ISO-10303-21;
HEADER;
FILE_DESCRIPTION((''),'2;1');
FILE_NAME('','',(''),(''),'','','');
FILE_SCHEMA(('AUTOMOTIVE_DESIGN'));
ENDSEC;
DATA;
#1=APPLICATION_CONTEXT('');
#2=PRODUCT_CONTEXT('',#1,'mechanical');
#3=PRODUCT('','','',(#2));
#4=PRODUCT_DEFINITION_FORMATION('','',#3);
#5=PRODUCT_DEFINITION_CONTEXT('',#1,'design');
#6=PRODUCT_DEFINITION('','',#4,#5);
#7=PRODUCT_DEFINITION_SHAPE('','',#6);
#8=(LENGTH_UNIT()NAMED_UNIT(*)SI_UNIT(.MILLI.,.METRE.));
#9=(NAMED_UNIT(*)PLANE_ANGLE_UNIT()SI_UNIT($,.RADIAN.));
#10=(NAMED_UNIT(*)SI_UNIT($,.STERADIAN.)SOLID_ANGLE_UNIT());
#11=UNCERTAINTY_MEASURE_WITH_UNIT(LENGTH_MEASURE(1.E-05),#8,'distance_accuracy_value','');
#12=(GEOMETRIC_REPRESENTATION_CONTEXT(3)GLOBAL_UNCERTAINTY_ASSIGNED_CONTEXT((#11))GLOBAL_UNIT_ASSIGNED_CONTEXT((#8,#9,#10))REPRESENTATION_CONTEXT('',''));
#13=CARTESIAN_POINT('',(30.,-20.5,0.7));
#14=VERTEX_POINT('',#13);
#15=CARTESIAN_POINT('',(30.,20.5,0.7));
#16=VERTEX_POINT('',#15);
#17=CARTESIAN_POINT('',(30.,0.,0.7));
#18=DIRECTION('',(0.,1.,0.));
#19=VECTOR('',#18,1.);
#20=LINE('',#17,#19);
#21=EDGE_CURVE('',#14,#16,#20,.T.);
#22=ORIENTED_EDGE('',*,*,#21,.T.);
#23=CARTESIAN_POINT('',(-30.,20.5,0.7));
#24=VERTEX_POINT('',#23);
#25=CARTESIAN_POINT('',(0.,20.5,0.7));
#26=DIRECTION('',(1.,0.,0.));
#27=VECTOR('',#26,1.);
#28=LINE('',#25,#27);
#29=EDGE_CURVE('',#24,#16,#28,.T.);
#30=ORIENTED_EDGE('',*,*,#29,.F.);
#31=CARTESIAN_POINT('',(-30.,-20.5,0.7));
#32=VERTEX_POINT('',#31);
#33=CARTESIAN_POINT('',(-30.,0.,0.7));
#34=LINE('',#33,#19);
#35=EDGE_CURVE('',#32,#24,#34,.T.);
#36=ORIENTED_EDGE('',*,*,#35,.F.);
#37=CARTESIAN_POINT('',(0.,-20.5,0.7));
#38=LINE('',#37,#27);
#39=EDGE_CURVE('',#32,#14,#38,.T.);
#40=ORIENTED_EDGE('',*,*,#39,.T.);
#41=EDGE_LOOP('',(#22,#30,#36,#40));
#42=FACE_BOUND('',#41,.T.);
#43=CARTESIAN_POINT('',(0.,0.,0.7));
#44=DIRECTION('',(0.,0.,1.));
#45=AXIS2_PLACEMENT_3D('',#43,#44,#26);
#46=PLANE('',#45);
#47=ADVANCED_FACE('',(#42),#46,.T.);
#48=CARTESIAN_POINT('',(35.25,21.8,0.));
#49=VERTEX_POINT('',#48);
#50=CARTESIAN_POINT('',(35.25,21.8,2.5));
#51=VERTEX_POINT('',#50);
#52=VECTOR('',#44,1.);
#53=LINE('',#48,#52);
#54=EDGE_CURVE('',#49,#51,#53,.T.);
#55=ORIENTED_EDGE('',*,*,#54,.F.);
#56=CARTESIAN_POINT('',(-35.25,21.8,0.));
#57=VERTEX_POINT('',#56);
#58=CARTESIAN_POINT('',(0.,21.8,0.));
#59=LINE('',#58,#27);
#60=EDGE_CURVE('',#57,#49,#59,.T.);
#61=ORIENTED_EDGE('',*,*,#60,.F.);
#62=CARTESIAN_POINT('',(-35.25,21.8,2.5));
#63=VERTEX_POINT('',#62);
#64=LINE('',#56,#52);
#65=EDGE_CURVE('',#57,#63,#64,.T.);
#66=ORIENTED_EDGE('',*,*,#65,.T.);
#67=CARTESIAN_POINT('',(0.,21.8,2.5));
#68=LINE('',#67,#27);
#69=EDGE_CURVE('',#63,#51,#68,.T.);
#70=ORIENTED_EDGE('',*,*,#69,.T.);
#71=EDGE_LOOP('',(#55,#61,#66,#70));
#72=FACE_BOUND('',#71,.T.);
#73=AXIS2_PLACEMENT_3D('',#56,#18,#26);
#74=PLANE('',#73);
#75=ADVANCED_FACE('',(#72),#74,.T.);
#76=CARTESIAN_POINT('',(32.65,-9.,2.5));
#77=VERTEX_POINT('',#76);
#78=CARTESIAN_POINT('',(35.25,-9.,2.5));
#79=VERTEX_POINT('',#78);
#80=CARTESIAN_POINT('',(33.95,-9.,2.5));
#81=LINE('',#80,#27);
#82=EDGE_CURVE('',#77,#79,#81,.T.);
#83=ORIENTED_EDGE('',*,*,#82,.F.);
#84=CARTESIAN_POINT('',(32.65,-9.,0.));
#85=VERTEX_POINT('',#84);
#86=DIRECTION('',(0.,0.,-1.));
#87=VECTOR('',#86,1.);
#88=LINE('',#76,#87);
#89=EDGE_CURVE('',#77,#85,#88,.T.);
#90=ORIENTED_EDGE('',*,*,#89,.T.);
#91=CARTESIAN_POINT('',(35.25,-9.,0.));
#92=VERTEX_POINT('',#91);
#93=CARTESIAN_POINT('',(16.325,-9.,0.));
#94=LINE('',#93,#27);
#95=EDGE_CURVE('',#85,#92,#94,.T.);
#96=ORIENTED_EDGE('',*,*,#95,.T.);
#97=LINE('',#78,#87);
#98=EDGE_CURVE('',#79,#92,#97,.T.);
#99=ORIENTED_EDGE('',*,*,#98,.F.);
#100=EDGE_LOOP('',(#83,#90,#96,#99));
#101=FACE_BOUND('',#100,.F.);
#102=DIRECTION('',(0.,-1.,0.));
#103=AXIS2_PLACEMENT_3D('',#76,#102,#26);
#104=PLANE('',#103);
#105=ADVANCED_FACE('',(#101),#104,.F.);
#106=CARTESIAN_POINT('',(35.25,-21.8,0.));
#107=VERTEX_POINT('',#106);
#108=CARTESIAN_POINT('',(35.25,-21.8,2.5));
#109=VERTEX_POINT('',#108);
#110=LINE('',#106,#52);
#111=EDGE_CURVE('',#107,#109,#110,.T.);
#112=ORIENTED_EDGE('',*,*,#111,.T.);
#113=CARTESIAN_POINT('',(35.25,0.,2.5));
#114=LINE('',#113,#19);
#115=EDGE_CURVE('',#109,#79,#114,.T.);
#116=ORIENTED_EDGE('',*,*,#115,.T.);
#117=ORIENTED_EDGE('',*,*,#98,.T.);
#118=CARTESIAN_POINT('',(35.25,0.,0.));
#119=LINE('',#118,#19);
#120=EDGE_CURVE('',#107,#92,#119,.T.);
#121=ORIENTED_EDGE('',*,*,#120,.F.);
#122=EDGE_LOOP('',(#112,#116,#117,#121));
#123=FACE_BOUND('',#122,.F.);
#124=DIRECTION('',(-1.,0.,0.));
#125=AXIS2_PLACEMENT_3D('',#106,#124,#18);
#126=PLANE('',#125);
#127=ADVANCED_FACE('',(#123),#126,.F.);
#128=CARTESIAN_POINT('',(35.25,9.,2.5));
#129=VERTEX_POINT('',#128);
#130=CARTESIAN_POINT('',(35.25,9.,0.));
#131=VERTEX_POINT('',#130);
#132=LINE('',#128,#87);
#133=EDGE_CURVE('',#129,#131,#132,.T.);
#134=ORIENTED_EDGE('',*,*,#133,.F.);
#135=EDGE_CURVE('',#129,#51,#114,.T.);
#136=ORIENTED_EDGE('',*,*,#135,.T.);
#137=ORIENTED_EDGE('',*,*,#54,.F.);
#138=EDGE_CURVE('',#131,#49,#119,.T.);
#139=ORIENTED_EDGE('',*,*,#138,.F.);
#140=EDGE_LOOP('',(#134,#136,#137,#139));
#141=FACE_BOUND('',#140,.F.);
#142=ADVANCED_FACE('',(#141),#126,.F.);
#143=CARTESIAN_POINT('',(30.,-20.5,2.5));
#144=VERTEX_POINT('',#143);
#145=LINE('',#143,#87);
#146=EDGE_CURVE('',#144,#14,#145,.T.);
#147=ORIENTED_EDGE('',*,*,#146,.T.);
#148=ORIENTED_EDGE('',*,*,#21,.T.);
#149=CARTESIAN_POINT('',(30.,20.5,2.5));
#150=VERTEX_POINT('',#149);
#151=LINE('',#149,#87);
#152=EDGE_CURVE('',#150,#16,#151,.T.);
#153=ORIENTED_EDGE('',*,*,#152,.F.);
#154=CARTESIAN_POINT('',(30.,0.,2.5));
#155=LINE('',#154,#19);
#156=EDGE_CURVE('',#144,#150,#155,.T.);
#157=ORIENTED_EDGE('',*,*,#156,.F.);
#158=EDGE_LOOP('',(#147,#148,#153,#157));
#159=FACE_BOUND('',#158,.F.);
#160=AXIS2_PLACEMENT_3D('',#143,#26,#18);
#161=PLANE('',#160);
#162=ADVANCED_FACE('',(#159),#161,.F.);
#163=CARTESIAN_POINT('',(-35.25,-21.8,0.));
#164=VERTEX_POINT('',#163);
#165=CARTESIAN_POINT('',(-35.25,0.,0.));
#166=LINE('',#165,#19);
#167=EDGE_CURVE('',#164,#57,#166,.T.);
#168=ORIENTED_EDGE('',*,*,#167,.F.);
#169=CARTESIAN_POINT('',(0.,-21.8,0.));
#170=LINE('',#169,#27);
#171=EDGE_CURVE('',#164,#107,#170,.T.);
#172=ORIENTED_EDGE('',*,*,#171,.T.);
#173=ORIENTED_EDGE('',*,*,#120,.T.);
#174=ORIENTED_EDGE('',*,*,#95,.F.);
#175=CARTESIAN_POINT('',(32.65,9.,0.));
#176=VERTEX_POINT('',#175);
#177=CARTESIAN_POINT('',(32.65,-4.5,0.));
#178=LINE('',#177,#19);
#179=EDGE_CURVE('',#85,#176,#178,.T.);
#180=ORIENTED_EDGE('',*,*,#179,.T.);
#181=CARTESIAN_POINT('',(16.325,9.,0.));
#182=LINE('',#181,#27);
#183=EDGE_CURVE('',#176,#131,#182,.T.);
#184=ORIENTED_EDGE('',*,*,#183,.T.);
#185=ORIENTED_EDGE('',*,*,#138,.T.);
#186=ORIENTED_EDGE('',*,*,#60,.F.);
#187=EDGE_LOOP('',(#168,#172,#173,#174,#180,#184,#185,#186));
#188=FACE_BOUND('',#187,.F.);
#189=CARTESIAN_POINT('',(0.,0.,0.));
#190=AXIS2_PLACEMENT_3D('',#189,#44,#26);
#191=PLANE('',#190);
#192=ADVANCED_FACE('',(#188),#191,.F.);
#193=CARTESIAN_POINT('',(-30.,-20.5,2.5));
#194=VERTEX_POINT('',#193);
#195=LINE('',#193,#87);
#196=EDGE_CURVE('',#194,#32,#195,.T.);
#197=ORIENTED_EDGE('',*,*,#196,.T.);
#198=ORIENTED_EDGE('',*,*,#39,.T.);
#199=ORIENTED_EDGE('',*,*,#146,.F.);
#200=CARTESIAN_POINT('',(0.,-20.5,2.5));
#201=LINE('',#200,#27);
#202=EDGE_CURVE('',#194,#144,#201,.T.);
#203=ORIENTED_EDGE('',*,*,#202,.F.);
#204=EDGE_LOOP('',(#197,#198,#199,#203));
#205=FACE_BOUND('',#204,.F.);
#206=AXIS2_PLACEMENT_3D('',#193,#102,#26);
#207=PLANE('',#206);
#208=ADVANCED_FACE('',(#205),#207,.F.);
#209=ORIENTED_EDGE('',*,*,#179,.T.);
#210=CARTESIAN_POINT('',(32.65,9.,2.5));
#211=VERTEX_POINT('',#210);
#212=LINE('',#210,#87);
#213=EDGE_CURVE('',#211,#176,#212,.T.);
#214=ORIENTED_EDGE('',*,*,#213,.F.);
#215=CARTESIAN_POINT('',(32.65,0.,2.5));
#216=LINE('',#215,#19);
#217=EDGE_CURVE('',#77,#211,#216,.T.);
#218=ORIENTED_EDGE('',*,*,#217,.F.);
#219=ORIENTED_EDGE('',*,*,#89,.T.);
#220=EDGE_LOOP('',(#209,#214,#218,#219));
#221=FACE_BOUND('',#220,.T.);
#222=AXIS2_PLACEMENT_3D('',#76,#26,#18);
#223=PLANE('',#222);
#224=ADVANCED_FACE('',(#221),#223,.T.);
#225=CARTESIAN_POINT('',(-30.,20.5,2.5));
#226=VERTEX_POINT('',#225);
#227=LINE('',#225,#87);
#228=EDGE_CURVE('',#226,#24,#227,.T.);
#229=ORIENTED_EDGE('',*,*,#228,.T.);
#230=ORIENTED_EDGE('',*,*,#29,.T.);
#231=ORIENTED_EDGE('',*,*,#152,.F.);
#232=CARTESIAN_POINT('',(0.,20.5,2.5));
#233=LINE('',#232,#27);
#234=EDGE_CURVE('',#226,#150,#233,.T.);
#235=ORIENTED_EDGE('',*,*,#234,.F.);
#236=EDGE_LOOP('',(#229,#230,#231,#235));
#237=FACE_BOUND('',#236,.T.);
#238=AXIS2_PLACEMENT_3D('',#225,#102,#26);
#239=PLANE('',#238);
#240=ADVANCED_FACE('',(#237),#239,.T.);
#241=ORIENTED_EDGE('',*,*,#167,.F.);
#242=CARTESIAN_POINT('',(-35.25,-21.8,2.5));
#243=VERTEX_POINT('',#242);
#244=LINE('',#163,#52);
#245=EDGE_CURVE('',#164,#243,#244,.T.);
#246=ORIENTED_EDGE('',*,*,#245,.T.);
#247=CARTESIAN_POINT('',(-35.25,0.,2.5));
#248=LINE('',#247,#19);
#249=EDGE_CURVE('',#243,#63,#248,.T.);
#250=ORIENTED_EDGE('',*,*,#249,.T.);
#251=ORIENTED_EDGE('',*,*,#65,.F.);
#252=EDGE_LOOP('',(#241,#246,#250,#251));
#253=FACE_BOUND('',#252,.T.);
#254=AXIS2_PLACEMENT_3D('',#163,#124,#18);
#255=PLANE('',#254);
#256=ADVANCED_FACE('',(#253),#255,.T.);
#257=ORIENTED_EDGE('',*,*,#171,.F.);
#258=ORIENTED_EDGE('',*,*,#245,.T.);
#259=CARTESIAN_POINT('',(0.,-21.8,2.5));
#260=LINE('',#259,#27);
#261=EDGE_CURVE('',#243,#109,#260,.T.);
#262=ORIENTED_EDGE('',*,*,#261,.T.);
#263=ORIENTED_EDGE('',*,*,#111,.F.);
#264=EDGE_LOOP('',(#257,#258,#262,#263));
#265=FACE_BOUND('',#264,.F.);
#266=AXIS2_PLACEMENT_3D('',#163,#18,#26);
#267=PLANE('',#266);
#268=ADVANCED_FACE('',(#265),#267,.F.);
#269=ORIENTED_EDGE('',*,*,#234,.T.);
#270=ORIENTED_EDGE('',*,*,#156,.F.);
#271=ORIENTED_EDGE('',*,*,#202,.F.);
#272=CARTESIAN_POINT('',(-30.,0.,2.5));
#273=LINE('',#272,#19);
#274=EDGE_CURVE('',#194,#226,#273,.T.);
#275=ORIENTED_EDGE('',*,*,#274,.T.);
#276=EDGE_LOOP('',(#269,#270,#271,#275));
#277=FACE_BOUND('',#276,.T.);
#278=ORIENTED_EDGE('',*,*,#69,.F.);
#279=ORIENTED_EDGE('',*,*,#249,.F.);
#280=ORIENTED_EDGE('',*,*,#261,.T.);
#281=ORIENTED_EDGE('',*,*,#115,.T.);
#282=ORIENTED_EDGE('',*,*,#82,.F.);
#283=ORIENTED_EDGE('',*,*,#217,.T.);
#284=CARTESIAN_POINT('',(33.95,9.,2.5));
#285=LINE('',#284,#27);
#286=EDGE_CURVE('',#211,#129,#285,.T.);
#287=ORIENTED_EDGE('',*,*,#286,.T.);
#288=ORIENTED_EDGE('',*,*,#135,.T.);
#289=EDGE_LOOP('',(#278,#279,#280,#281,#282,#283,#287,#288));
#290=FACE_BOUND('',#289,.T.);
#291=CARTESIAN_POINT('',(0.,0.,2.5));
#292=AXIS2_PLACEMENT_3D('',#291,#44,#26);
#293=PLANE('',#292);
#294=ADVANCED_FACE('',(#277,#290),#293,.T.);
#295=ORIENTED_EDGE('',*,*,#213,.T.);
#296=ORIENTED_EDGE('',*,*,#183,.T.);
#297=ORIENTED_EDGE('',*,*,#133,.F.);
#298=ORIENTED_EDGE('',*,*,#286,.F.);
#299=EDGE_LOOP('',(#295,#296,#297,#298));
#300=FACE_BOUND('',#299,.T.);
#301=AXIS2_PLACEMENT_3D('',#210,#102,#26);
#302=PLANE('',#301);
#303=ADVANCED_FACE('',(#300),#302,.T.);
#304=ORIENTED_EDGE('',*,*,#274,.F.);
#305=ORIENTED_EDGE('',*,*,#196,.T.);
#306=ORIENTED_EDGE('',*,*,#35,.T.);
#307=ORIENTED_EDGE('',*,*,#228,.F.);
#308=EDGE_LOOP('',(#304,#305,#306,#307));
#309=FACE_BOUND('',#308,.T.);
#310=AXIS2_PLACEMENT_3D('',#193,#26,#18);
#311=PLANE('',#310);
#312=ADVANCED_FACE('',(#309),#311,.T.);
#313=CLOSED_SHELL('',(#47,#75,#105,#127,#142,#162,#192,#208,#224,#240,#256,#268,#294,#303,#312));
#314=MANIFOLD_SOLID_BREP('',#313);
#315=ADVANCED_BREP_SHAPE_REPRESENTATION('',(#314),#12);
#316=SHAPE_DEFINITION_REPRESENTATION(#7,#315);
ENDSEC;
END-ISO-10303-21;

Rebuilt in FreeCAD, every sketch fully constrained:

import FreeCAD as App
import Part
import Sketcher

doc = App.newDocument("Part")
body = doc.addObject("PartDesign::Body", "Body")

# Sketch on XY plane
sketch1 = doc.addObject("Sketcher::SketchObject", "Sketch")
body.addObject(sketch1)
sketch1.AttachmentSupport = (doc.XY_Plane, [""])
sketch1.MapMode = "FlatFace"
sketch1.addGeometry([
    Part.LineSegment(App.Vector(-35, 22, 0), App.Vector(-35, -22, 0)),
    Part.LineSegment(App.Vector(-35, -22, 0), App.Vector(35, -22, 0)),
    Part.LineSegment(App.Vector(35, -22, 0), App.Vector(35, 22, 0)),
    Part.LineSegment(App.Vector(35, 22, 0), App.Vector(-35, 22, 0)),
], False)
sketch1.addConstraint([
    Sketcher.Constraint("Coincident", 0, 2, 1, 1),
    Sketcher.Constraint("Coincident", 1, 2, 2, 1),
    Sketcher.Constraint("Coincident", 2, 2, 3, 1),
    Sketcher.Constraint("Coincident", 3, 2, 0, 1),
    Sketcher.Constraint("Vertical", 0),
    Sketcher.Constraint("Horizontal", 1),
    Sketcher.Constraint("Vertical", 2),
    Sketcher.Constraint("Horizontal", 3),
    Sketcher.Constraint("Symmetric", 0, 2, 2, 2, -1, 1),
    Sketcher.Constraint("DistanceX", 1, 1, 1, 2, 70.5),
    Sketcher.Constraint("DistanceY", 0, 2, 0, 1, 43.6),
])
pad1 = doc.addObject("PartDesign::Pad", "Pad")
body.addObject(pad1)
pad1.Profile = sketch1
pad1.Length = 2.5

# Sketch on XY plane
sketch2 = doc.addObject("Sketcher::SketchObject", "Sketch001")
body.addObject(sketch2)
sketch2.AttachmentSupport = (doc.XY_Plane, [""])
sketch2.MapMode = "FlatFace"
sketch2.AttachmentOffset = App.Placement(App.Vector(0, 0, 2.5), App.Rotation())
sketch2.addGeometry([
    Part.LineSegment(App.Vector(-30, 20, 0), App.Vector(-30, -20, 0)),
    Part.LineSegment(App.Vector(-30, -20, 0), App.Vector(30, -20, 0)),
    Part.LineSegment(App.Vector(30, -20, 0), App.Vector(30, 20, 0)),
    Part.LineSegment(App.Vector(30, 20, 0), App.Vector(-30, 20, 0)),
], False)
sketch2.addConstraint([
    Sketcher.Constraint("Coincident", 0, 2, 1, 1),
    Sketcher.Constraint("Coincident", 1, 2, 2, 1),
    Sketcher.Constraint("Coincident", 2, 2, 3, 1),
    Sketcher.Constraint("Coincident", 3, 2, 0, 1),
    Sketcher.Constraint("Vertical", 0),
    Sketcher.Constraint("Horizontal", 1),
    Sketcher.Constraint("Vertical", 2),
    Sketcher.Constraint("Horizontal", 3),
    Sketcher.Constraint("Symmetric", 0, 2, 2, 2, -1, 1),
    Sketcher.Constraint("DistanceX", 1, 1, 1, 2, 60.0),
    Sketcher.Constraint("DistanceY", 0, 2, 0, 1, 41.0),
])
pocket1 = doc.addObject("PartDesign::Pocket", "Pocket")
body.addObject(pocket1)
pocket1.Profile = sketch2
pocket1.Length = 1.8

# Sketch on XY plane
sketch3 = doc.addObject("Sketcher::SketchObject", "Sketch002")
body.addObject(sketch3)
sketch3.AttachmentSupport = (doc.XY_Plane, [""])
sketch3.MapMode = "FlatFace"
sketch3.AttachmentOffset = App.Placement(App.Vector(0, 0, 2.5), App.Rotation())
sketch3.addGeometry([
    Part.LineSegment(App.Vector(32.6, 9, 0), App.Vector(32.6, -9, 0)),
    Part.LineSegment(App.Vector(32.6, -9, 0), App.Vector(35.2, -9, 0)),
    Part.LineSegment(App.Vector(35.2, -9, 0), App.Vector(35.2, 9, 0)),
    Part.LineSegment(App.Vector(35.2, 9, 0), App.Vector(32.6, 9, 0)),
], False)
sketch3.addConstraint([
    Sketcher.Constraint("Coincident", 0, 2, 1, 1),
    Sketcher.Constraint("Coincident", 1, 2, 2, 1),
    Sketcher.Constraint("Coincident", 2, 2, 3, 1),
    Sketcher.Constraint("Coincident", 3, 2, 0, 1),
    Sketcher.Constraint("Vertical", 0),
    Sketcher.Constraint("Horizontal", 1),
    Sketcher.Constraint("Vertical", 2),
    Sketcher.Constraint("Horizontal", 3),
    Sketcher.Constraint("DistanceY", 0, 2, 0, 1, 18.0),
    Sketcher.Constraint("DistanceX", 1, 1, 1, 2, 2.6),
    Sketcher.Constraint("DistanceY", 0, 2, -1, 1, 9.0),
    Sketcher.Constraint("DistanceX", -1, 1, 0, 2, 32.65),
])
pocket2 = doc.addObject("PartDesign::Pocket", "Pocket001")
body.addObject(pocket2)
pocket2.Profile = sketch3
pocket2.Length = 5

doc.recompute()
